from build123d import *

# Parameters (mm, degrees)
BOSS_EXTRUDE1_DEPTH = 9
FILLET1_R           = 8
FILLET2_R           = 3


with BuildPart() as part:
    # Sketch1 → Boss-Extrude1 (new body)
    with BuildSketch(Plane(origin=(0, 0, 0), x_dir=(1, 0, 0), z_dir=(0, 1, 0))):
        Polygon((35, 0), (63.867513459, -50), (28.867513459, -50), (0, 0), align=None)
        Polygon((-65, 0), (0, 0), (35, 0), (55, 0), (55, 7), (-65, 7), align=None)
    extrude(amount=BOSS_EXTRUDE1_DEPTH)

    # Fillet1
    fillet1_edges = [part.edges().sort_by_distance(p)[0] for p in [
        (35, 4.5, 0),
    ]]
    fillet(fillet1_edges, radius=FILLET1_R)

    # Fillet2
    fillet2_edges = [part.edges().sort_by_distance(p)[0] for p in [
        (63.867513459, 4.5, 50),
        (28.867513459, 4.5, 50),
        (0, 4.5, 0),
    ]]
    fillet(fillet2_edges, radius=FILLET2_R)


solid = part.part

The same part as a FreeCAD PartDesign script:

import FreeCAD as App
import Part
import Sketcher

V = App.Vector
Q = App.Units.Quantity


def edges_at(feature, points):
    """Names of the edges that pass closest to the given points."""
    edges = feature.Shape.Edges
    near = lambda p: min(range(len(edges)), key=lambda i: edges[i].distToShape(Part.Vertex(*p))[0])
    return sorted({f"Edge{near(p) + 1}" for p in points})

doc = App.newDocument("Part")
body = doc.addObject("PartDesign::Body", "Body")

# Sketch on XZ plane
sketch1 = body.newObject("Sketcher::SketchObject", "Sketch")
sketch1.AttachmentSupport = (doc.getObject("XZ_Plane"), [""])
sketch1.MapMode = "FlatFace"
sketch1.addGeometry([
    Part.LineSegment(V(64, 50, 0), V(35, 0, 0)),  # 0
    Part.LineSegment(V(35, 0, 0), V(55, 0, 0)),  # 1
    Part.LineSegment(V(55, 0, 0), V(55, -7, 0)),  # 2
    Part.LineSegment(V(55, -7, 0), V(-65, -7, 0)),  # 3
    Part.LineSegment(V(-65, -7, 0), V(-65, 0, 0)),  # 4
    Part.LineSegment(V(-65, 0, 0), V(0, 0, 0)),  # 5
    Part.LineSegment(V(0, 0, 0), V(29, 50, 0)),  # 6
    Part.LineSegment(V(29, 50, 0), V(64, 50, 0)),  # 7
], False)
sketch1.addConstraint([
    Sketcher.Constraint("Coincident", 0, 2, 1, 1),
    Sketcher.Constraint("Coincident", 1, 2, 2, 1),
    Sketcher.Constraint("Coincident", 2, 2, 3, 1),
    Sketcher.Constraint("Coincident", 3, 2, 4, 1),
    Sketcher.Constraint("Coincident", 4, 2, 5, 1),
    Sketcher.Constraint("Coincident", 5, 2, 6, 1),
    Sketcher.Constraint("Coincident", 6, 2, 7, 1),
    Sketcher.Constraint("Coincident", 7, 2, 0, 1),
    Sketcher.Constraint("Horizontal", 1),
    Sketcher.Constraint("Vertical", 2),
    Sketcher.Constraint("Horizontal", 3),
    Sketcher.Constraint("Vertical", 4),
    Sketcher.Constraint("Horizontal", 5),
    Sketcher.Constraint("Horizontal", 7),
    Sketcher.Constraint("Coincident", 5, 2, -1, 1),
    Sketcher.Constraint("PointOnObject", 0, 2, -1),
    Sketcher.Constraint("Parallel", 0, 6),
    Sketcher.Constraint("DistanceX", 1, 1, 1, 2, Q("20 mm")),
    Sketcher.Constraint("DistanceX", 3, 2, 3, 1, Q("120 mm")),
    Sketcher.Constraint("DistanceX", 5, 1, 5, 2, Q("65 mm")),
    Sketcher.Constraint("DistanceY", 2, 2, 2, 1, Q("7 mm")),
    Sketcher.Constraint("Angle", 0, Q("-120 deg")),
    Sketcher.Constraint("DistanceY", -1, 1, 6, 2, Q("50 mm")),
])
pad1 = body.newObject("PartDesign::Pad", "Pad")
pad1.Profile = sketch1
pad1.Length = 9
pad1.Reversed = True
doc.recompute()

fillet = body.newObject("PartDesign::Fillet", "Fillet")
fillet.Base = (pad1, edges_at(pad1, [(35, 4.5, 0)]))
fillet.Radius = 8
doc.recompute()

fillet2 = body.newObject("PartDesign::Fillet", "Fillet001")
fillet2.Base = (fillet, edges_at(fillet, [(63.868, 4.5, 50), (28.868, 4.5, 50), (0, 4.5, 0)]))
fillet2.Radius = 3

doc.recompute()
